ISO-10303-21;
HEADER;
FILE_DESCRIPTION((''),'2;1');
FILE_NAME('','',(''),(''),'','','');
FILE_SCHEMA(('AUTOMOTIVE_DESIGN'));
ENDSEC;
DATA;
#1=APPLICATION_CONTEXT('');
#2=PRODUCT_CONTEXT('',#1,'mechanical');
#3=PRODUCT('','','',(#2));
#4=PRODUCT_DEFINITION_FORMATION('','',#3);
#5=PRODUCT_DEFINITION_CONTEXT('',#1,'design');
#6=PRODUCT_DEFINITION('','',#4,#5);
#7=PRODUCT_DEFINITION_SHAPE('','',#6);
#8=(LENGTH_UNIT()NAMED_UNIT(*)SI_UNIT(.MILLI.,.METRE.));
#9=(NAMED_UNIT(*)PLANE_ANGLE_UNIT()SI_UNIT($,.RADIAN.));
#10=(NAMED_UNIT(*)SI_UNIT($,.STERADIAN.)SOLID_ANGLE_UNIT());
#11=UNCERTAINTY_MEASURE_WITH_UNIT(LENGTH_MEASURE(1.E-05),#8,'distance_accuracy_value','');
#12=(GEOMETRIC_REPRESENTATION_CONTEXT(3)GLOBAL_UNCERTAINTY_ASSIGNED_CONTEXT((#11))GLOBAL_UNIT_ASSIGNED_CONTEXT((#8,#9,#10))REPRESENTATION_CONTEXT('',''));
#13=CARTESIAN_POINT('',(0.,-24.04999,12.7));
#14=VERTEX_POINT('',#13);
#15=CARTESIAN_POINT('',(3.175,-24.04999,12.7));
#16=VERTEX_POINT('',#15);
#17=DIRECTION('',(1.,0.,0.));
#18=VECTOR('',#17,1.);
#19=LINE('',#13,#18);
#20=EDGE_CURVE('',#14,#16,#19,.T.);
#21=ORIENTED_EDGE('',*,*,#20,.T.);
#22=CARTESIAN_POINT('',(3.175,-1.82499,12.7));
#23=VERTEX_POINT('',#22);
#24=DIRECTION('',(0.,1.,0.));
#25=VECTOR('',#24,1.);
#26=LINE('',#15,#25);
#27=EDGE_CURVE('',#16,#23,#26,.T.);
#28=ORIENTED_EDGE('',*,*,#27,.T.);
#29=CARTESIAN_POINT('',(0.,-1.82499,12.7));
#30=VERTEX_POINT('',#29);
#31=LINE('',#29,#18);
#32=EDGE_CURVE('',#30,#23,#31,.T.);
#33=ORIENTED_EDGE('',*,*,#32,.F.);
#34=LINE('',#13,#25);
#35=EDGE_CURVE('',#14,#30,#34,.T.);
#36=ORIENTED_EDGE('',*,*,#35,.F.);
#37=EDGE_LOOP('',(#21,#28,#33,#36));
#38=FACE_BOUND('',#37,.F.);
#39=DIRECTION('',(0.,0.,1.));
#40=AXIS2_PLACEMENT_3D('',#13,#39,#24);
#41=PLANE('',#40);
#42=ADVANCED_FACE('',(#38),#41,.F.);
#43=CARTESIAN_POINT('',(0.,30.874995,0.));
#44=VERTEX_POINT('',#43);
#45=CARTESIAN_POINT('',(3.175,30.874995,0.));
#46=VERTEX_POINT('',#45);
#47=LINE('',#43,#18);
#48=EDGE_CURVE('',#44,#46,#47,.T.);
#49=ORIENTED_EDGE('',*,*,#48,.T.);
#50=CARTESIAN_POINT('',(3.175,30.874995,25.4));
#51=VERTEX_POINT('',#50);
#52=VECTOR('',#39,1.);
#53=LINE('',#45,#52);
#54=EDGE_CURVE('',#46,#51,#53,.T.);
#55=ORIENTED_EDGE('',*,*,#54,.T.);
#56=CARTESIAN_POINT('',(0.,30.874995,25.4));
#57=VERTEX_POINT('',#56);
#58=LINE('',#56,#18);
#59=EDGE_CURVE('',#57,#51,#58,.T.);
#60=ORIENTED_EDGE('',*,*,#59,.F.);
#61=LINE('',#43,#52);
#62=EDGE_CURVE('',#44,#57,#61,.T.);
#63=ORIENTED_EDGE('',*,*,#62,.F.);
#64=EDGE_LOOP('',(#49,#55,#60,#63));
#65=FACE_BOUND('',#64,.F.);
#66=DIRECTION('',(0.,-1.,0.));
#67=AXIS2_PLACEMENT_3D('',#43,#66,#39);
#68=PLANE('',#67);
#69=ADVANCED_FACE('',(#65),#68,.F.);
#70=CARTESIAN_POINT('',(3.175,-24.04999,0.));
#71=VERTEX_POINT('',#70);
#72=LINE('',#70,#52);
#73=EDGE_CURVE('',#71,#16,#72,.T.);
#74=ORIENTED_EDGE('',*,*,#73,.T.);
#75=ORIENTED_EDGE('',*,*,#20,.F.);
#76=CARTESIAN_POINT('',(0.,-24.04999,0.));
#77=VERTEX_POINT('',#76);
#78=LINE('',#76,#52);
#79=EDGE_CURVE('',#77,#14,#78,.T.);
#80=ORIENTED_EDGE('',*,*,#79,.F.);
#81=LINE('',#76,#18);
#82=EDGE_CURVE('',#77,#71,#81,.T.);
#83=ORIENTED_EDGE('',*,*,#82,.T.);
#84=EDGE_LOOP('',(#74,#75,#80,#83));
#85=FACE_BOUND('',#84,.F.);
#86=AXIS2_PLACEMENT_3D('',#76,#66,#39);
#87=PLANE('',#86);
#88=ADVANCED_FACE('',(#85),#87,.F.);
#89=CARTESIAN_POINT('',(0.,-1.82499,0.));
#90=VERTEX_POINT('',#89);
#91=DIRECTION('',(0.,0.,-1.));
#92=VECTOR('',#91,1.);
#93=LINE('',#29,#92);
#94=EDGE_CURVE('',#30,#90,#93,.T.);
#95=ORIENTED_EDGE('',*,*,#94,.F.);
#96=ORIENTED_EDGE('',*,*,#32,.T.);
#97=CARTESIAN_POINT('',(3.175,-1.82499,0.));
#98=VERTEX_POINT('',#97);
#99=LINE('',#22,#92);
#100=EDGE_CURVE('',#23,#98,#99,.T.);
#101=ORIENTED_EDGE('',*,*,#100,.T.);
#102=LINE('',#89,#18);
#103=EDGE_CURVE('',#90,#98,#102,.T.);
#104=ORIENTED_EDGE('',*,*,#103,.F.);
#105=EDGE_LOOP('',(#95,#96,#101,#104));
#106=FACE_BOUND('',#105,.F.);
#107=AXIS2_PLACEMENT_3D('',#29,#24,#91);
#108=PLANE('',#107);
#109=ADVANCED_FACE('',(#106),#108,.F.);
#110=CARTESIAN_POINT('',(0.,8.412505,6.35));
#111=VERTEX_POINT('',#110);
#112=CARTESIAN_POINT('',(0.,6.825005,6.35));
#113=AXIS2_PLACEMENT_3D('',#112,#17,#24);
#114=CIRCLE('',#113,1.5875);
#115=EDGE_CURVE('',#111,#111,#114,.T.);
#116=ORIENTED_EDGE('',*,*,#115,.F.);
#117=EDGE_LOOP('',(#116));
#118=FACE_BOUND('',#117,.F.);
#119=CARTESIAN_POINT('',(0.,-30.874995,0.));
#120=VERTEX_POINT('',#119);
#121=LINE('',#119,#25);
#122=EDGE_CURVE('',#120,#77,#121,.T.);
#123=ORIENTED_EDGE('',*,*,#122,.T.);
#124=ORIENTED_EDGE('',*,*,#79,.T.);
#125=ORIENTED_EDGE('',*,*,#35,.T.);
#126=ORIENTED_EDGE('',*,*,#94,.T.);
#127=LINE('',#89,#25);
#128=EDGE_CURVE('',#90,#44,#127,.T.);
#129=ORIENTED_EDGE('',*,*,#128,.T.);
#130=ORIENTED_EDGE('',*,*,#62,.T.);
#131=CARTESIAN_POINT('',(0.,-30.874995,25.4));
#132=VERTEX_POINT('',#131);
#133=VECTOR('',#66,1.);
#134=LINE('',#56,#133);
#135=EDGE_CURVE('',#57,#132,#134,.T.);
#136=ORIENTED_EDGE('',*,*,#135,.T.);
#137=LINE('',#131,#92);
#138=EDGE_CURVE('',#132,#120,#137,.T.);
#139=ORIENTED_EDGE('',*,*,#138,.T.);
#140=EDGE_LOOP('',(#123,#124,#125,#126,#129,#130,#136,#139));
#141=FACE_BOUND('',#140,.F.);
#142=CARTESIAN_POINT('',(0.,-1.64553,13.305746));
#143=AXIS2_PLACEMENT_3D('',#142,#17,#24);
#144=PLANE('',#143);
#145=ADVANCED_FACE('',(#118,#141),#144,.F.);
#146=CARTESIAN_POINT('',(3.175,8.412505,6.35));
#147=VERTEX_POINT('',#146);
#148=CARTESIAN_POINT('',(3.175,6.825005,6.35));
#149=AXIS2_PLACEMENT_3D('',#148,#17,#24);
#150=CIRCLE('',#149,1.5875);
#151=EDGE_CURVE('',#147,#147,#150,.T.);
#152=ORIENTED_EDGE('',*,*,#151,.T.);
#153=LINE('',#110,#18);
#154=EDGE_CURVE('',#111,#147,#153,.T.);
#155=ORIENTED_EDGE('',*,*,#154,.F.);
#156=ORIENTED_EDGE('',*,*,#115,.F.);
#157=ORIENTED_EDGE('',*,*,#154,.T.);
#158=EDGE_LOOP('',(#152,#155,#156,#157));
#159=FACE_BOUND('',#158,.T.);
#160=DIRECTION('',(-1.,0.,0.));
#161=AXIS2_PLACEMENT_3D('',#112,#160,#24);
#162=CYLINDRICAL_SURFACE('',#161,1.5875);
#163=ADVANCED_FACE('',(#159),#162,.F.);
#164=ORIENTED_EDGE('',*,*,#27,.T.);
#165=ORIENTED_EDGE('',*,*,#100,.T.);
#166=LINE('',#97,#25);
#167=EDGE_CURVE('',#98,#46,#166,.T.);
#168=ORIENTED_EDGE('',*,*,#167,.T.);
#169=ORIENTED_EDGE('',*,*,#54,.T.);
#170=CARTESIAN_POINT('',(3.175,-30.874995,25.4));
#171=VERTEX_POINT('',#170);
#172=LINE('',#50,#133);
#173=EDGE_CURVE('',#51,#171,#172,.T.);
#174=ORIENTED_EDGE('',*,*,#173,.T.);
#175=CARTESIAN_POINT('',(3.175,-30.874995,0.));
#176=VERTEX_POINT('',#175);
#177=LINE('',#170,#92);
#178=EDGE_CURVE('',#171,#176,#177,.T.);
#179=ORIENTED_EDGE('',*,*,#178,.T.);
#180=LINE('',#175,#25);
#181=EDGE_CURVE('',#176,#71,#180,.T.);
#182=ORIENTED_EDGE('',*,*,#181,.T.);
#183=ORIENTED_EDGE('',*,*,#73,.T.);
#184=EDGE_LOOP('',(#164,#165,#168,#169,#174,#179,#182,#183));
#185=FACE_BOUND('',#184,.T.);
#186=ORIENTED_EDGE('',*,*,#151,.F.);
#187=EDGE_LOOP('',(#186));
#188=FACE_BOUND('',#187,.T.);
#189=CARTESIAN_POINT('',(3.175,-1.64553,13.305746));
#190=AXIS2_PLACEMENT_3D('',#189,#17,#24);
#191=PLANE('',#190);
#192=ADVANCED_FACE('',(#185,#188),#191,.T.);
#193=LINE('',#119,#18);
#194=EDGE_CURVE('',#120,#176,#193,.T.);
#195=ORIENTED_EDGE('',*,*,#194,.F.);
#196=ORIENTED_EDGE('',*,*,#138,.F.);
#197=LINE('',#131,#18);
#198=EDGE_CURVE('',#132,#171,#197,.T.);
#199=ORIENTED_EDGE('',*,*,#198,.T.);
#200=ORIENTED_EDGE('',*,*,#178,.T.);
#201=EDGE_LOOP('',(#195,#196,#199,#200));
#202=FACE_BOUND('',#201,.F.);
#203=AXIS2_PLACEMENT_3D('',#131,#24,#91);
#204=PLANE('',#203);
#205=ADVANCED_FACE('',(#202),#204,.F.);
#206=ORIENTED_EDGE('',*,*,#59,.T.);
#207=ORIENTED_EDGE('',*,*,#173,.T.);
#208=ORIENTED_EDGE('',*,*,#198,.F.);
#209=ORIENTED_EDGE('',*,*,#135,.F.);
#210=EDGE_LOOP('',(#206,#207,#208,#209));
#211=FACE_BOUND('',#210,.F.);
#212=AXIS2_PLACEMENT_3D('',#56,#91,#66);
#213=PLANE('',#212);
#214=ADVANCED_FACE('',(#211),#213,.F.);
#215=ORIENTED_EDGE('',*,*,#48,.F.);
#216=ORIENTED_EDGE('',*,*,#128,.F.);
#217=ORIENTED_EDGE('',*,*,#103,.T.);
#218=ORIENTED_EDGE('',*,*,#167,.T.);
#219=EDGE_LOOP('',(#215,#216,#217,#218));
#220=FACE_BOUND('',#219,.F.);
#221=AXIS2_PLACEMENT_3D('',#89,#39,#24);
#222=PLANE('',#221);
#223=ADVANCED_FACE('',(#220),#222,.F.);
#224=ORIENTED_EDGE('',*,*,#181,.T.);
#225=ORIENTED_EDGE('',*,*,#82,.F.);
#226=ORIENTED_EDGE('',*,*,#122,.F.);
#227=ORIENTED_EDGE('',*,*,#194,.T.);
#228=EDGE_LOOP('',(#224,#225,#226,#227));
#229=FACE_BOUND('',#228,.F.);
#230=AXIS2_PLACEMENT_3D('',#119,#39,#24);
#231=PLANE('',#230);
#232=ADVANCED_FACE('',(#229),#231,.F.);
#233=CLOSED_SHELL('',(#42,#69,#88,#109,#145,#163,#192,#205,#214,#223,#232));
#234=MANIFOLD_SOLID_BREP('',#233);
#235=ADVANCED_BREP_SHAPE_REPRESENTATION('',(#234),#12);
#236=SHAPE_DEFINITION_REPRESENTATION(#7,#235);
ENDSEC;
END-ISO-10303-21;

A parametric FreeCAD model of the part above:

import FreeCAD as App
import Part
import Sketcher
Q = App.Units.Quantity


def add_polygon(sketch, points):
    """Adds a closed chain of lines whose ends are joined by coincident constraints."""
    first, n = sketch.GeometryCount, len(points)
    for a, b in zip(points, points[1:] + points[:1]):
        sketch.addGeometry(Part.LineSegment(App.Vector(*a, 0), App.Vector(*b, 0)), False)
    for i in range(n):
        sketch.addConstraint(Sketcher.Constraint("Coincident", first + i, 2, first + (i + 1) % n, 1))

doc = App.newDocument("Part")
body = doc.addObject("PartDesign::Body", "Body")

sketch1 = doc.addObject("Sketcher::SketchObject", "Sketch")
body.addObject(sketch1)
sketch1.AttachmentSupport = (doc.YZ_Plane, [""])
sketch1.MapMode = "FlatFace"
add_polygon(sketch1, [(-30.874995, 25.4), (-30.874995, 0), (-24.04999, 0), (-24.04999, 12.7), (-1.82499, 12.7), (-1.82499, 0), (30.874995, 0), (30.874995, 25.4)])
sketch1.addGeometry(Part.Circle(App.Vector(6.825005, 6.35, 0), App.Vector(0, 0, 1), 1.5875), False)
sketch1.addConstraint(Sketcher.Constraint("Vertical", 0))
sketch1.addConstraint(Sketcher.Constraint("Horizontal", 1))
sketch1.addConstraint(Sketcher.Constraint("Vertical", 2))
sketch1.addConstraint(Sketcher.Constraint("Horizontal", 3))
sketch1.addConstraint(Sketcher.Constraint("Vertical", 4))
sketch1.addConstraint(Sketcher.Constraint("Horizontal", 5))
sketch1.addConstraint(Sketcher.Constraint("Vertical", 6))
sketch1.addConstraint(Sketcher.Constraint("Horizontal", 7))
sketch1.addConstraint(Sketcher.Constraint("Symmetric", 0, 2, 5, 2, -1, 1))
sketch1.addConstraint(Sketcher.Constraint("PointOnObject", 0, 2, -1))
sketch1.addConstraint(Sketcher.Constraint("DistanceY", 0, 2, 0, 1, Q("1 in")))
sketch1.addConstraint(Sketcher.Constraint("Diameter", 8, Q("0.125 in")))
sketch1.addConstraint(Sketcher.Constraint("DistanceY", 2, 1, 2, 2, Q("0.5 in")))
sketch1.addConstraint(Sketcher.Constraint("DistanceX", 3, 1, 3, 2, Q("0.875 in")))
sketch1.addConstraint(Sketcher.Constraint("DistanceY", -1, 1, 8, 3, Q("0.25 in")))
sketch1.addConstraint(Sketcher.Constraint("DistanceX", 7, 2, 7, 1, 61.74999))
sketch1.addConstraint(Sketcher.Constraint("DistanceX", 0, 2, 8, 3, 37.7))
sketch1.addConstraint(Sketcher.Constraint("DistanceX", 1, 1, 1, 2, 6.825005))
pad1 = doc.addObject("PartDesign::Pad", "Pad")
body.addObject(pad1)
pad1.Profile = sketch1
pad1.Length = Q("0.125 in")

doc.recompute()
